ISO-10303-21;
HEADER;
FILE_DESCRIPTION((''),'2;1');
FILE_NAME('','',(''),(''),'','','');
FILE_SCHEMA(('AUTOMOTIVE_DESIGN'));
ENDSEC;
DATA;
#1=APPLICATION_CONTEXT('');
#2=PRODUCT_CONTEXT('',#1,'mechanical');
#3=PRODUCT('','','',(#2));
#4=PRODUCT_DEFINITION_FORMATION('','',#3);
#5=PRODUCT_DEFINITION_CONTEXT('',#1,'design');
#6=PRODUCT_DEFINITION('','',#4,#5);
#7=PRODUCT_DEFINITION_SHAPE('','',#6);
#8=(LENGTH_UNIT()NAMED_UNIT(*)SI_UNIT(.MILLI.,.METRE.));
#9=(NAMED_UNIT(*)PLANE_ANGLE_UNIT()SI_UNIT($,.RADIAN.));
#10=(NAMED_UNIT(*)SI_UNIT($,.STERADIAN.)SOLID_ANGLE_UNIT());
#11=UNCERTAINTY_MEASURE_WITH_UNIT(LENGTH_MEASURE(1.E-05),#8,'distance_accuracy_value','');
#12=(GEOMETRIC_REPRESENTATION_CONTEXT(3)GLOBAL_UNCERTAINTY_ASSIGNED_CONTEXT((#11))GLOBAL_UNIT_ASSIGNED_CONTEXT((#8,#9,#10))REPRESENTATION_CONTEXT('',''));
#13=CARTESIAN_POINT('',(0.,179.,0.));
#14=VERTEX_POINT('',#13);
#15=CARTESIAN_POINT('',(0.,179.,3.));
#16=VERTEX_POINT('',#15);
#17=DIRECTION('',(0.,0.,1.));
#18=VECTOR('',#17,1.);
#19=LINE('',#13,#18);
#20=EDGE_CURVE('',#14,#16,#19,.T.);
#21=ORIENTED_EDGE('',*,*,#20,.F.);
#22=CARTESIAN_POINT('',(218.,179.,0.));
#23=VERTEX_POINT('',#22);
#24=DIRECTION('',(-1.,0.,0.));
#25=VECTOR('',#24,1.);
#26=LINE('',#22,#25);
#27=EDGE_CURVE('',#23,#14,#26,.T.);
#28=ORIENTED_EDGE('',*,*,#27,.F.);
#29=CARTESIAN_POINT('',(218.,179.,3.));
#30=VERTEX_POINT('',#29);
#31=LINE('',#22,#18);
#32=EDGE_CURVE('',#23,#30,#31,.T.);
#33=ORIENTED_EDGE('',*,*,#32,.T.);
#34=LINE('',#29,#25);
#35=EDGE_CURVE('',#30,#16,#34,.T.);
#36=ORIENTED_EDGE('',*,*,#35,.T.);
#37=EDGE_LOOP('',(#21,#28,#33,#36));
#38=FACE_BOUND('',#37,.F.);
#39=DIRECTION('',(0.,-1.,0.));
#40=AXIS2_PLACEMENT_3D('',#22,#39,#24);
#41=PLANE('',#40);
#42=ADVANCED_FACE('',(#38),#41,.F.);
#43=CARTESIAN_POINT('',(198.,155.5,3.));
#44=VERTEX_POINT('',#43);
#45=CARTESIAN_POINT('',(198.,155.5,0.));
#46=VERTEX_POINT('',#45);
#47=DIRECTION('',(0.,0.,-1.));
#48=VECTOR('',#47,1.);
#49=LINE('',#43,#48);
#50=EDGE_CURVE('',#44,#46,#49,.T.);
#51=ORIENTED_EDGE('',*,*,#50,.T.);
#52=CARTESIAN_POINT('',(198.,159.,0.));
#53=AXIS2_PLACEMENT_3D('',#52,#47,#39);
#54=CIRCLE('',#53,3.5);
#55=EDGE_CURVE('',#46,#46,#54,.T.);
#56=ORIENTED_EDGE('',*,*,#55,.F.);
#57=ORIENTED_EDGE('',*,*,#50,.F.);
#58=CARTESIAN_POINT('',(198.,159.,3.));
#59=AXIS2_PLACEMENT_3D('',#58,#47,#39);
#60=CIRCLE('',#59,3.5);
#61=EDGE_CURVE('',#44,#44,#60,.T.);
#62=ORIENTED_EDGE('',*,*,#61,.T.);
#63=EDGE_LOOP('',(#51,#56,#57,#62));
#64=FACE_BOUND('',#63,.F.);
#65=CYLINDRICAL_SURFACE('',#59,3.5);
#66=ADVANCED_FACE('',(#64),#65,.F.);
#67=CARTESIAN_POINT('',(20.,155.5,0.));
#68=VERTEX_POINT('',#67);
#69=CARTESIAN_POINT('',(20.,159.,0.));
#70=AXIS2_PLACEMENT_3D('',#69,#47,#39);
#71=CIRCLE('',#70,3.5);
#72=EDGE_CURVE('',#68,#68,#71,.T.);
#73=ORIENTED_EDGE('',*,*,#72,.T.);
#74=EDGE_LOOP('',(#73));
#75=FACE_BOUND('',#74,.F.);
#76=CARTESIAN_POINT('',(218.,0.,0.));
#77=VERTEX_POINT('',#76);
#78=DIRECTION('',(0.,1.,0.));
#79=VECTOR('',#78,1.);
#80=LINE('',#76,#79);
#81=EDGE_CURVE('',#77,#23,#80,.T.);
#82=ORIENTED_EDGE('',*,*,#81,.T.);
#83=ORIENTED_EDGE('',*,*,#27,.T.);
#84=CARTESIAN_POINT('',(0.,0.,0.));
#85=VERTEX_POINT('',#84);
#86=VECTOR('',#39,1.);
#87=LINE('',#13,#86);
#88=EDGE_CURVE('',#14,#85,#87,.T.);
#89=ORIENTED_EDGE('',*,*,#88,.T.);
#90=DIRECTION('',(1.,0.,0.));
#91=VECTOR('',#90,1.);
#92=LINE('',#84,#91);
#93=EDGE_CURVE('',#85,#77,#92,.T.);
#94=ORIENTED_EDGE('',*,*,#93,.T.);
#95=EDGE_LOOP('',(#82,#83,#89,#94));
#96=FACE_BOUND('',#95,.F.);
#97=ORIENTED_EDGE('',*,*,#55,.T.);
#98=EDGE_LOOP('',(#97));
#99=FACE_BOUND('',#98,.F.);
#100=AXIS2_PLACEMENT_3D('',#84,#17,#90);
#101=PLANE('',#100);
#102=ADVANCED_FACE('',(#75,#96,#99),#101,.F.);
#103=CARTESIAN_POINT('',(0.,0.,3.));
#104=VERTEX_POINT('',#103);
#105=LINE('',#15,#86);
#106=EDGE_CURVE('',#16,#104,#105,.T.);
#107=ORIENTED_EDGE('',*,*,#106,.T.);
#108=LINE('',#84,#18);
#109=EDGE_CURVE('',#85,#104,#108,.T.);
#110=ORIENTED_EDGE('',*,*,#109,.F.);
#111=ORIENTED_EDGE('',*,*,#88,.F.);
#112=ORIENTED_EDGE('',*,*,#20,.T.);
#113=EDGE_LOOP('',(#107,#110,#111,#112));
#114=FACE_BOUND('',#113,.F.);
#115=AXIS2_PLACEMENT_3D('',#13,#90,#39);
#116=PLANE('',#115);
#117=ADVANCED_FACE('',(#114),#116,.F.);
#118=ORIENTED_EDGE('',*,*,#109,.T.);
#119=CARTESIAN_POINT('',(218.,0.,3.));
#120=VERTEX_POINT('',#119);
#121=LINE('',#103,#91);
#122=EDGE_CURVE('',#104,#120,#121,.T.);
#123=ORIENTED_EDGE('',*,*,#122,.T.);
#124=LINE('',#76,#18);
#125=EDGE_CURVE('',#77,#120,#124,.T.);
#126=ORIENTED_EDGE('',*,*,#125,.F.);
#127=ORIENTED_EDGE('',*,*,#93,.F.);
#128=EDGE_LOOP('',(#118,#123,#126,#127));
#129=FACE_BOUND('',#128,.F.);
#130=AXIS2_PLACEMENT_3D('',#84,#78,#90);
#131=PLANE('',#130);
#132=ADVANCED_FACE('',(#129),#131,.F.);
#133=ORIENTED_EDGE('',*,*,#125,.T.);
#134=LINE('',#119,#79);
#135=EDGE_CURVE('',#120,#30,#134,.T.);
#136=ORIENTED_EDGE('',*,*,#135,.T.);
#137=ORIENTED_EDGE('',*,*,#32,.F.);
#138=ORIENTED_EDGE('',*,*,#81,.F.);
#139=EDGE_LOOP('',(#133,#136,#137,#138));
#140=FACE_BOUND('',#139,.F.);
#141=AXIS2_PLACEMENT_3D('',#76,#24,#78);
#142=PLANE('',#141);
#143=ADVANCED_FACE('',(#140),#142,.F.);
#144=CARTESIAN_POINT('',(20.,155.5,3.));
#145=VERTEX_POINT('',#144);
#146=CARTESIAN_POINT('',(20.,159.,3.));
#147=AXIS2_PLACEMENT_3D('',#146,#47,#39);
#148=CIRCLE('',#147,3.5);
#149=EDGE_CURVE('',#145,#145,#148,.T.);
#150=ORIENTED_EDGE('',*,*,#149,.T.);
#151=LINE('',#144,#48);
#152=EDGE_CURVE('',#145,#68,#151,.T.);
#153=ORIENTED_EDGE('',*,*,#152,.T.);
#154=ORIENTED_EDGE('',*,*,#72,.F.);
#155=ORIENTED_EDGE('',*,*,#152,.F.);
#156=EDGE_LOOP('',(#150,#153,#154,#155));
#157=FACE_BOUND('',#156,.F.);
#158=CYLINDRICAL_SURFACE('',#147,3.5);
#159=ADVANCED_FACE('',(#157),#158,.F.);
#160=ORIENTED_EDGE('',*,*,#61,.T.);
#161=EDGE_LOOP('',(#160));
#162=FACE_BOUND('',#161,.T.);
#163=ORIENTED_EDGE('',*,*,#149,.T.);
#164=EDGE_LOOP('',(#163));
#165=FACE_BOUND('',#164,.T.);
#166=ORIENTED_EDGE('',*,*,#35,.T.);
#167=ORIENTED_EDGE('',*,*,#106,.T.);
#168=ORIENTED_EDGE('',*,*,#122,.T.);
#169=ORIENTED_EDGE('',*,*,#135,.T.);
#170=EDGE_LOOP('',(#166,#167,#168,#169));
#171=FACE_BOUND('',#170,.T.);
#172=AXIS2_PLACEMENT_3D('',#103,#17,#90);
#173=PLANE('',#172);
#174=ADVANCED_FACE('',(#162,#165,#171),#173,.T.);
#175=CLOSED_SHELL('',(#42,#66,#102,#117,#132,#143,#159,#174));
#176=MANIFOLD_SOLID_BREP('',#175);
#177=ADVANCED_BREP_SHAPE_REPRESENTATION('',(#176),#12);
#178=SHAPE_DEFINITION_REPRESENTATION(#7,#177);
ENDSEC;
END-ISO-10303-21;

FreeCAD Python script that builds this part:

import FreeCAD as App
import Part
import Sketcher
Q = App.Units.Quantity

doc = App.newDocument("Part")
params = doc.addObject("Spreadsheet::Sheet", "Params")
for row, (alias, value) in enumerate([
    ("sketch1_width", "218 mm"),
    ("sketch1_height", "179 mm"),
    ("pad1_length", "3 mm"),
    ("sketch2_diameter", "7 mm"),
    ("hole_diameter", "7 mm"),
], start=1):
    params.set(f"A{row}", alias)
    params.set(f"B{row}", "=" + value)
    params.setAlias(f"B{row}", alias)

body = doc.addObject("PartDesign::Body", "Body")

sketch1 = body.newObject("Sketcher::SketchObject", "Sketch")
sketch1.AttachmentSupport = (doc.getObject("XY_Plane"), [""])
sketch1.MapMode = "FlatFace"
sketch1.addGeometry([
    Part.LineSegment(App.Vector(0, 179, 0), App.Vector(0, 0, 0)),
    Part.LineSegment(App.Vector(0, 0, 0), App.Vector(218, 0, 0)),
    Part.LineSegment(App.Vector(218, 0, 0), App.Vector(218, 179, 0)),
    Part.LineSegment(App.Vector(218, 179, 0), App.Vector(0, 179, 0)),
], False)
sketch1.addConstraint([
    Sketcher.Constraint("Coincident", 0, 2, 1, 1),
    Sketcher.Constraint("Coincident", 1, 2, 2, 1),
    Sketcher.Constraint("Coincident", 2, 2, 3, 1),
    Sketcher.Constraint("Coincident", 3, 2, 0, 1),
    Sketcher.Constraint("Vertical", 0),
    Sketcher.Constraint("Horizontal", 1),
    Sketcher.Constraint("Vertical", 2),
    Sketcher.Constraint("Horizontal", 3),
    Sketcher.Constraint("Coincident", 0, 2, -1, 1),
    Sketcher.Constraint("DistanceX", 1, 1, 1, 2, Q("218 mm")),
    Sketcher.Constraint("DistanceY", 0, 2, 0, 1, Q("179 mm")),
])
sketch1.setExpression("Constraints[9]", "Params.sketch1_width")
sketch1.setExpression("Constraints[10]", "Params.sketch1_height")
pad1 = body.newObject("PartDesign::Pad", "Pad")
pad1.Profile = sketch1
pad1.setExpression("Length", "Params.pad1_length")

sketch2 = body.newObject("Sketcher::SketchObject", "Sketch001")
sketch2.AttachmentSupport = (doc.getObject("XY_Plane"), [""])
sketch2.MapMode = "FlatFace"
sketch2.AttachmentOffset = App.Placement(App.Vector(0, 0, 3), App.Rotation())
sketch2.addGeometry([
    Part.Circle(App.Vector(20, 159, 0), App.Vector(0, 0, 1), 3.5),
    Part.Circle(App.Vector(198, 159, 0), App.Vector(0, 0, 1), 3.5),
], False)
sketch2.addConstraint([
    Sketcher.Constraint("Equal", 0, 1),
    Sketcher.Constraint("Horizontal", 0, 3, 1, 3),
    Sketcher.Constraint("Diameter", 0, Q("7 mm")),
    Sketcher.Constraint("DistanceX", -1, 1, 0, 3, Q("20 mm")),
    Sketcher.Constraint("DistanceY", -1, 1, 0, 3, Q("159 mm")),
    Sketcher.Constraint("DistanceX", -1, 1, 1, 3, Q("198 mm")),
])
sketch2.setExpression("Constraints[2]", "Params.sketch2_diameter")
doc.recompute()
hole = body.newObject("PartDesign::Hole", "Hole")
hole.Profile = sketch2
hole.ThreadType = "None"
hole.setExpression("Diameter", "Params.hole_diameter")
hole.DepthType = "ThroughAll"

doc.recompute()
